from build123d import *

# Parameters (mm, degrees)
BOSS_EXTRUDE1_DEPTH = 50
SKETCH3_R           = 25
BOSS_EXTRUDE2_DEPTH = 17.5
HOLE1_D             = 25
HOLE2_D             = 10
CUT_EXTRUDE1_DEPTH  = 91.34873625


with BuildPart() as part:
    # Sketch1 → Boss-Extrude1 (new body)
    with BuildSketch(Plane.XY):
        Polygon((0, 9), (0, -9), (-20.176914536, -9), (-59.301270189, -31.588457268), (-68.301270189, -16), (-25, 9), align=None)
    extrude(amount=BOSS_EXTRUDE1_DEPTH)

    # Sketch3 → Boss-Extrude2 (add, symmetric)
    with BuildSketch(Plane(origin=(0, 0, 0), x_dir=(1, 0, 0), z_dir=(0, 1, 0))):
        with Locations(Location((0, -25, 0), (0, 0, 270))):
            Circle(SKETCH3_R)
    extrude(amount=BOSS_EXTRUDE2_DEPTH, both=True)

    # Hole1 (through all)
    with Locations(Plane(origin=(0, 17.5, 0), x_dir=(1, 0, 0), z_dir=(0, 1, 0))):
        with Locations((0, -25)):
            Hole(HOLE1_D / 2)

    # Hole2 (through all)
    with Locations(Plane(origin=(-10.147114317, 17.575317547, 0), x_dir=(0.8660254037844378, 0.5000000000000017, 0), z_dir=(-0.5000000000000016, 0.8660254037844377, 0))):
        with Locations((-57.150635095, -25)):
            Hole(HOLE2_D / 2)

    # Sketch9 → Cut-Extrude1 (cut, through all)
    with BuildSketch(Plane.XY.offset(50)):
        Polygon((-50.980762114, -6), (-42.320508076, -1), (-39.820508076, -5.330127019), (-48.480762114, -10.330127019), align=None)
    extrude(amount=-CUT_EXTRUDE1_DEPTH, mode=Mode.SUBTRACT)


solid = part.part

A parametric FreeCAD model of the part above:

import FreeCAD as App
import Part
import Sketcher

V = App.Vector
Q = App.Units.Quantity


def add_polygon(sketch, points):
    """Adds a closed chain of lines whose ends are joined by coincident constraints."""
    first, n = sketch.GeometryCount, len(points)
    for a, b in zip(points, points[1:] + points[:1]):
        sketch.addGeometry(Part.LineSegment(App.Vector(*a, 0), App.Vector(*b, 0)), False)
    for i in range(n):
        sketch.addConstraint(Sketcher.Constraint("Coincident", first + i, 2, first + (i + 1) % n, 1))

doc = App.newDocument("Part")
body = doc.addObject("PartDesign::Body", "Body")

# Sketch on XY plane
sketch1 = doc.addObject("Sketcher::SketchObject", "Sketch")
body.addObject(sketch1)
sketch1.AttachmentSupport = (doc.XY_Plane, [""])
sketch1.MapMode = "FlatFace"
add_polygon(sketch1, [(0, -9), (0, 9), (-25, 9), (-68.30127, -16), (-59.30127, -31.588457), (-20.176915, -9)])  # lines 0-5
sketch1.addConstraint([
    Sketcher.Constraint("Vertical", 0),
    Sketcher.Constraint("Horizontal", 1),
    Sketcher.Constraint("Horizontal", 5),
    Sketcher.Constraint("Symmetric", 0, 2, 5, 2, -1, 1),
    Sketcher.Constraint("Perpendicular", 2, 3),
    Sketcher.Constraint("Perpendicular", 3, 4),
    Sketcher.Constraint("DistanceX", 1, 2, 1, 1, Q("25 mm")),
    Sketcher.Constraint("DistanceY", 0, 1, 0, 2, Q("18 mm")),
    Sketcher.Constraint("Angle", 2, Q("-150 deg")),
    Sketcher.Constraint("Distance", 2, Q("50 mm")),
    Sketcher.Constraint("Distance", 3, Q("18 mm")),
])
pad1 = doc.addObject("PartDesign::Pad", "Pad")
body.addObject(pad1)
pad1.Profile = sketch1
pad1.Length = 50

# Sketch on XZ plane
sketch2 = doc.addObject("Sketcher::SketchObject", "Sketch001")
body.addObject(sketch2)
sketch2.AttachmentSupport = (doc.XZ_Plane, [""])
sketch2.MapMode = "FlatFace"
sketch2.addGeometry(Part.Circle(V(0, 25, 0), V(0, 0, 1), 25), False)
sketch2.addConstraint([
    Sketcher.Constraint("PointOnObject", 0, 3, -2),
    Sketcher.Constraint("Diameter", 0, Q("50 mm")),
    Sketcher.Constraint("DistanceY", -1, 1, 0, 3, Q("25 mm")),
])
pad2 = doc.addObject("PartDesign::Pad", "Pad001")
body.addObject(pad2)
pad2.Profile = sketch2
pad2.Length = 35
pad2.Midplane = True

# Sketch on XZ plane
sketch3 = doc.addObject("Sketcher::SketchObject", "Sketch002")
body.addObject(sketch3)
sketch3.AttachmentSupport = (doc.XZ_Plane, [""])
sketch3.MapMode = "FlatFace"
sketch3.AttachmentOffset = App.Placement(V(0, 0, -17.5), App.Rotation())
sketch3.addGeometry(Part.Circle(V(0, 25, 0), V(0, 0, 1), 12.5), False)
sketch3.addConstraint([
    Sketcher.Constraint("PointOnObject", 0, 3, -2),
    Sketcher.Constraint("Diameter", 0, Q("25 mm")),
    Sketcher.Constraint("DistanceY", -1, 1, 0, 3, Q("25 mm")),
])
doc.recompute()
hole = doc.addObject("PartDesign::Hole", "Hole")
body.addObject(hole)
hole.Profile = sketch3
hole.ThreadType = "None"
hole.Diameter = 25
hole.DepthType = "ThroughAll"
hole.Reversed = True

# Sketch on an angled plane
sketch4 = doc.addObject("Sketcher::SketchObject", "Sketch003")
body.addObject(sketch4)
sketch4.Placement = App.Placement(V(-10.147114, 17.575318, 0), App.Rotation(V(0.866025404, 0.5, 0), V(0, 0, -1), V(-0.5, 0.866025404, 0), "ZXY"))
sketch4.addGeometry(Part.Circle(V(-57.150635, -25, 0), V(0, 0, 1), 5), False)
sketch4.addConstraint([
    Sketcher.Constraint("Diameter", 0, Q("10 mm")),
    Sketcher.Constraint("DistanceY", 0, 3, -1, 1, Q("25 mm")),
    Sketcher.Constraint("DistanceX", 0, 3, -1, 1, Q("57.150635 mm")),
])
doc.recompute()
hole2 = doc.addObject("PartDesign::Hole", "Hole001")
body.addObject(hole2)
hole2.Profile = sketch4
hole2.ThreadType = "None"
hole2.Diameter = 10
hole2.DepthType = "ThroughAll"

# Sketch on XY plane
sketch5 = doc.addObject("Sketcher::SketchObject", "Sketch004")
body.addObject(sketch5)
sketch5.AttachmentSupport = (doc.XY_Plane, [""])
sketch5.MapMode = "FlatFace"
sketch5.AttachmentOffset = App.Placement(V(0, 0, 50), App.Rotation())
add_polygon(sketch5, [(-42.320508, -1), (-50.980762, -6), (-48.480762, -10.330127), (-39.820508, -5.330127)])  # lines 0-3
sketch5.addConstraint([
    Sketcher.Constraint("Perpendicular", 0, 1),
    Sketcher.Constraint("Perpendicular", 1, 2),
    Sketcher.Constraint("Perpendicular", 2, 3),
    Sketcher.Constraint("Angle", 0, Q("-150 deg")),
    Sketcher.Constraint("Distance", 0, Q("10 mm")),
    Sketcher.Constraint("Distance", 1, Q("5 mm")),
    Sketcher.Constraint("DistanceY", 0, 2, -1, 1, Q("6 mm")),
    Sketcher.Constraint("DistanceX", 2, 2, -1, 1, Q("39.820508 mm")),
])
pocket1 = doc.addObject("PartDesign::Pocket", "Pocket")
body.addObject(pocket1)
pocket1.Profile = sketch5
pocket1.Type = "ThroughAll"

doc.recompute()
